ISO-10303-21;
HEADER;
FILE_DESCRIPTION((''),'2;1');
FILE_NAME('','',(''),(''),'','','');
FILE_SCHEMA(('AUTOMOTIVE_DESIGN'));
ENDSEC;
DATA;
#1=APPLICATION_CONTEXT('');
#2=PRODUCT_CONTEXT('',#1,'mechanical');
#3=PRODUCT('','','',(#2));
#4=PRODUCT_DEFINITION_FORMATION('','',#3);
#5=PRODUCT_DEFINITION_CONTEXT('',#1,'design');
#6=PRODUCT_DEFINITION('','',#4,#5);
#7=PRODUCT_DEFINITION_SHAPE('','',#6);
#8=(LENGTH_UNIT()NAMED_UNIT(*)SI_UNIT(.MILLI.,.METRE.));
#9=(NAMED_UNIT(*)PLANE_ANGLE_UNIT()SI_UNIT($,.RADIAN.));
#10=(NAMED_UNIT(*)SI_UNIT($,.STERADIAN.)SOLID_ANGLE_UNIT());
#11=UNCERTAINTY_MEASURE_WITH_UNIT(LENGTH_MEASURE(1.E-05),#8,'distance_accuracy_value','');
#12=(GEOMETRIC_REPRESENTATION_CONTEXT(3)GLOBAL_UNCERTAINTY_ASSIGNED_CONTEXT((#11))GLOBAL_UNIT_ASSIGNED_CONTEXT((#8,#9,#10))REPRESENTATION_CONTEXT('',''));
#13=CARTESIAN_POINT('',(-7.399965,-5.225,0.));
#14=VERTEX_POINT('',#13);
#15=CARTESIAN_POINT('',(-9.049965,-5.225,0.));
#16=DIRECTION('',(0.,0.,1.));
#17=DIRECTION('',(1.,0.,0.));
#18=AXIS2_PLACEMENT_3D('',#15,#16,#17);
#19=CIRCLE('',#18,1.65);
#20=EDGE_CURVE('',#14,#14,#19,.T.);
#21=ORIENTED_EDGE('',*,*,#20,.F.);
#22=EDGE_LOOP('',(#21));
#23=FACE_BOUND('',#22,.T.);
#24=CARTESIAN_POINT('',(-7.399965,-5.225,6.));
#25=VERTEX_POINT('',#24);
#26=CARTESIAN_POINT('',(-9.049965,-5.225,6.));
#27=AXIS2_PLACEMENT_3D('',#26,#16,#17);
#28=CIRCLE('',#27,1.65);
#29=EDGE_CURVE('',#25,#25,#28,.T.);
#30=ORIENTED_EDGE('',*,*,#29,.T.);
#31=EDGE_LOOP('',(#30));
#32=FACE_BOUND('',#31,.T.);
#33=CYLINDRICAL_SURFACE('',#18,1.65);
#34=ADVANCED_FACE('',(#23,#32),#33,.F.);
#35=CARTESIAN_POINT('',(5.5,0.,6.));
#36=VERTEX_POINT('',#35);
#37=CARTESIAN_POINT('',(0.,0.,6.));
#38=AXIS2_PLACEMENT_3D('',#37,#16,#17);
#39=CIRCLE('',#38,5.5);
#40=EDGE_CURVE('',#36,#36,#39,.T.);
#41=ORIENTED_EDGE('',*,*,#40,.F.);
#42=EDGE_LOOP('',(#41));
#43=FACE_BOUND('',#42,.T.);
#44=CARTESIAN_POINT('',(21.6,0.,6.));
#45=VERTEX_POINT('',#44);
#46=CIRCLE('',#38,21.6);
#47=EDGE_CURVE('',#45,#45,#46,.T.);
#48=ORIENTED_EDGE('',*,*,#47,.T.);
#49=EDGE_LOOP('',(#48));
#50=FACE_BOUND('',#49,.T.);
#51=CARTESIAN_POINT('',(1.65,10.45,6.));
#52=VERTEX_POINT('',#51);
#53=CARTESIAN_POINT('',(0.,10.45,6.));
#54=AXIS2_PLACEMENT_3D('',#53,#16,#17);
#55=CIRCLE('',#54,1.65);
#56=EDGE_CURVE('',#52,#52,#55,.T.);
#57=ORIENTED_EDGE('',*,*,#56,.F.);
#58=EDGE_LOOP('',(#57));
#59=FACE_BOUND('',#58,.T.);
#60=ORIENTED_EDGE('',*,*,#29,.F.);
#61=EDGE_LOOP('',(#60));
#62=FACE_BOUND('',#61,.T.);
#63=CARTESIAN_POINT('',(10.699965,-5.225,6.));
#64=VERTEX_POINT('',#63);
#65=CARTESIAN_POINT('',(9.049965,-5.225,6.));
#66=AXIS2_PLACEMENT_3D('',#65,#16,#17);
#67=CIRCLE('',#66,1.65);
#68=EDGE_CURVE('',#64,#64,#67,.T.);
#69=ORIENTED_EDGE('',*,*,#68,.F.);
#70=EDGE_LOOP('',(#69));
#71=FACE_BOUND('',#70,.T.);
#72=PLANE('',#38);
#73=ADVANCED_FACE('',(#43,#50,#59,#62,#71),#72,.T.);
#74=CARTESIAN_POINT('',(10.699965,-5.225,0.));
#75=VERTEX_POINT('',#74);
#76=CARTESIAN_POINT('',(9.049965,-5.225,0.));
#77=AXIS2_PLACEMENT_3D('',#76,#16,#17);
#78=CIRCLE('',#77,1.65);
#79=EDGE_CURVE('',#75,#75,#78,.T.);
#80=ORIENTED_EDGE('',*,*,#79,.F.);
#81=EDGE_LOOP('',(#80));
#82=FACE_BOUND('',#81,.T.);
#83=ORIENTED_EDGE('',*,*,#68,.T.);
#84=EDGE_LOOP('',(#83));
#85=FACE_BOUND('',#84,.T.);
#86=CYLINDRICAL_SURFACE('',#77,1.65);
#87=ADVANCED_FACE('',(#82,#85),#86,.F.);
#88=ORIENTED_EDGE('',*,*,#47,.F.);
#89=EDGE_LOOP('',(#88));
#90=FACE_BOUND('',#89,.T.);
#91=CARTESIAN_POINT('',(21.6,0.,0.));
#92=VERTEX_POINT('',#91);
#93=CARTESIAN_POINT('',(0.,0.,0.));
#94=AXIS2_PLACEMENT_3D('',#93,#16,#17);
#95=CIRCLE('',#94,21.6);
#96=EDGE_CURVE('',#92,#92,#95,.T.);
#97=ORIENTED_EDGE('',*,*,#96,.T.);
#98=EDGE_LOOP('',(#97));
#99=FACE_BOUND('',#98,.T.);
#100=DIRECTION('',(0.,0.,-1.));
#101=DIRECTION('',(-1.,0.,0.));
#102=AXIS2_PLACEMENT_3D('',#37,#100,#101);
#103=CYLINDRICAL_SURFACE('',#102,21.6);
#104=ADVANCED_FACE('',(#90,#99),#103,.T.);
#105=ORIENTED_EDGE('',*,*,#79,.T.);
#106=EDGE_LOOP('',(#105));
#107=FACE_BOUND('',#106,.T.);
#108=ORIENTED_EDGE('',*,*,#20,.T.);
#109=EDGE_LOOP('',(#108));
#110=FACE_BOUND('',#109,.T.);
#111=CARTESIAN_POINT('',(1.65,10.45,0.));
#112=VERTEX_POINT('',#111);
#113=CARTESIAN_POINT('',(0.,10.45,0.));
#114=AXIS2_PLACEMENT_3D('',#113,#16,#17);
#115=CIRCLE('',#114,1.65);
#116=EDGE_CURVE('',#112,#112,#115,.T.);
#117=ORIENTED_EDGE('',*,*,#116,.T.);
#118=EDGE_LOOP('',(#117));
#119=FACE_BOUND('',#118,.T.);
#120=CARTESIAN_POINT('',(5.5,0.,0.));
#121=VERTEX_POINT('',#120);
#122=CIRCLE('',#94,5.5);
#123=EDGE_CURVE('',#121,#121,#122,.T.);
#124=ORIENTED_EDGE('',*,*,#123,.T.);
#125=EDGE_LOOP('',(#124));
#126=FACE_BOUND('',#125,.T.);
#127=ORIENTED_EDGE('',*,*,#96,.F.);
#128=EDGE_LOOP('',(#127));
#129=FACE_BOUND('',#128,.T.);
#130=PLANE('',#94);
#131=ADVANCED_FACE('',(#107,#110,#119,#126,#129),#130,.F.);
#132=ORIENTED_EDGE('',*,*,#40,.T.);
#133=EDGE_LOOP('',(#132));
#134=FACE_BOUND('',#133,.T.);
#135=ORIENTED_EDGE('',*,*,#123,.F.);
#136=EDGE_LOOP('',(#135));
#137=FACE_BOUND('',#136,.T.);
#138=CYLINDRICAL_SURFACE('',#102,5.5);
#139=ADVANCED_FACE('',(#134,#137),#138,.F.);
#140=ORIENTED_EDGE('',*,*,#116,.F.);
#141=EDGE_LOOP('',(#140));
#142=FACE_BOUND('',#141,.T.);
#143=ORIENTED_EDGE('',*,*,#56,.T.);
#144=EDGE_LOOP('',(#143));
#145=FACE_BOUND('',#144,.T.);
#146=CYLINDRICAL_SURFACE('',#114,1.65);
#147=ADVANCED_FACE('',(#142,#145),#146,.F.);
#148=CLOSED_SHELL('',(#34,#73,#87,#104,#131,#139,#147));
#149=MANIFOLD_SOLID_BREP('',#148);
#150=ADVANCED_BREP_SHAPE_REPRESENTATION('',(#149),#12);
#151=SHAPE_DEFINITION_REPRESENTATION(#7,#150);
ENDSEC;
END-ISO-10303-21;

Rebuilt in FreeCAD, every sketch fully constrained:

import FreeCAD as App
import Part
import Sketcher

V = App.Vector

doc = App.newDocument("Part")
body = doc.addObject("PartDesign::Body", "Body")

sketch1 = doc.addObject("Sketcher::SketchObject", "Sketch")
body.addObject(sketch1)
sketch1.AttachmentSupport = (doc.XY_Plane, [""])
sketch1.MapMode = "FlatFace"
sketch1.addGeometry([
    Part.Circle(V(0, 0, 0), V(0, 0, 1), 22),
    Part.Circle(V(0, 0, 0), V(0, 0, 1), 6),
], False)
sketch1.addConstraint([
    Sketcher.Constraint("Coincident", 0, 3, -1, 1),
    Sketcher.Constraint("Coincident", 1, 3, -1, 1),
    Sketcher.Constraint("Diameter", 1, 11.0),
    Sketcher.Constraint("Diameter", 0, 43.2),
])
pad1 = doc.addObject("PartDesign::Pad", "Pad")
body.addObject(pad1)
pad1.Profile = sketch1
pad1.Length = 6

sketch2 = doc.addObject("Sketcher::SketchObject", "Sketch001")
body.addObject(sketch2)
sketch2.AttachmentSupport = (doc.XY_Plane, [""])
sketch2.MapMode = "FlatFace"
sketch2.AttachmentOffset = App.Placement(V(0, 0, 6), App.Rotation())
sketch2.addGeometry([
    Part.Circle(V(0, 10.4, 0), V(0, 0, 1), 1.6),
    Part.Circle(V(9, -5.2, 0), V(0, 0, 1), 1.6),
    Part.Circle(V(-9, -5.2, 0), V(0, 0, 1), 1.6),
], False)
sketch2.addConstraint([
    Sketcher.Constraint("Equal", 0, 1),
    Sketcher.Constraint("Equal", 1, 2),
    Sketcher.Constraint("Symmetric", 1, 3, 2, 3, -2),
    Sketcher.Constraint("PointOnObject", 0, 3, -2),
    Sketcher.Constraint("Diameter", 0, 3.3),
    Sketcher.Constraint("DistanceY", -1, 1, 0, 3, 10.45),
    Sketcher.Constraint("DistanceY", 1, 3, -1, 1, 5.225),
    Sketcher.Constraint("DistanceX", 2, 3, 1, 3, 18.099931),
])
pocket1 = doc.addObject("PartDesign::Pocket", "Pocket")
body.addObject(pocket1)
pocket1.Profile = sketch2
pocket1.Type = "ThroughAll"

doc.recompute()
